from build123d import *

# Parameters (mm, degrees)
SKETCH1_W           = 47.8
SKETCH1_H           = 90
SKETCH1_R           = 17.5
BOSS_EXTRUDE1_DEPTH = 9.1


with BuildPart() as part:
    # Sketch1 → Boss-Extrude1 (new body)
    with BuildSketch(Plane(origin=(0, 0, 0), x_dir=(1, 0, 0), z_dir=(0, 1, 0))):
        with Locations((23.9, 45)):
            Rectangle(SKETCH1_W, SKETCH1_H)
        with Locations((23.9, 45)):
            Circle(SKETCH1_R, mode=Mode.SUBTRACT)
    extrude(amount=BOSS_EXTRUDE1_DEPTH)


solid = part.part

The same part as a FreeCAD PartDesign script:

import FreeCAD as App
import Part
import Sketcher

doc = App.newDocument("Part")
body = doc.addObject("PartDesign::Body", "Body")

# Sketch on XZ plane
sketch1 = body.newObject("Sketcher::SketchObject", "Sketch")
sketch1.AttachmentSupport = (doc.getObject("XZ_Plane"), [""])
sketch1.MapMode = "FlatFace"
sketch1.addGeometry([
    Part.LineSegment(App.Vector(0, -90, 0), App.Vector(0, 0, 0)),  # 0
    Part.LineSegment(App.Vector(0, 0, 0), App.Vector(48, 0, 0)),  # 1
    Part.LineSegment(App.Vector(48, 0, 0), App.Vector(48, -90, 0)),  # 2
    Part.LineSegment(App.Vector(48, -90, 0), App.Vector(0, -90, 0)),  # 3
    Part.Circle(App.Vector(24, -45, 0), App.Vector(0, 0, 1), 18),  # 4
], False)
sketch1.addConstraint([
    Sketcher.Constraint("Coincident", 0, 2, 1, 1),
    Sketcher.Constraint("Coincident", 1, 2, 2, 1),
    Sketcher.Constraint("Coincident", 2, 2, 3, 1),
    Sketcher.Constraint("Coincident", 3, 2, 0, 1),
    Sketcher.Constraint("Vertical", 0),
    Sketcher.Constraint("Horizontal", 1),
    Sketcher.Constraint("Vertical", 2),
    Sketcher.Constraint("Horizontal", 3),
    Sketcher.Constraint("Coincident", 0, 2, -1, 1),
    Sketcher.Constraint("Diameter", 4, 35.0),
    Sketcher.Constraint("DistanceY", 0, 1, 0, 2, 90.0),
    Sketcher.Constraint("DistanceX", 1, 1, 1, 2, 47.8),
    Sketcher.Constraint("DistanceY", 4, 3, -1, 1, 45.0),
    Sketcher.Constraint("DistanceX", -1, 1, 4, 3, 23.9),
])
pad1 = body.newObject("PartDesign::Pad", "Pad")
pad1.Profile = sketch1
pad1.Length = 9.1
pad1.Reversed = True

doc.recompute()
